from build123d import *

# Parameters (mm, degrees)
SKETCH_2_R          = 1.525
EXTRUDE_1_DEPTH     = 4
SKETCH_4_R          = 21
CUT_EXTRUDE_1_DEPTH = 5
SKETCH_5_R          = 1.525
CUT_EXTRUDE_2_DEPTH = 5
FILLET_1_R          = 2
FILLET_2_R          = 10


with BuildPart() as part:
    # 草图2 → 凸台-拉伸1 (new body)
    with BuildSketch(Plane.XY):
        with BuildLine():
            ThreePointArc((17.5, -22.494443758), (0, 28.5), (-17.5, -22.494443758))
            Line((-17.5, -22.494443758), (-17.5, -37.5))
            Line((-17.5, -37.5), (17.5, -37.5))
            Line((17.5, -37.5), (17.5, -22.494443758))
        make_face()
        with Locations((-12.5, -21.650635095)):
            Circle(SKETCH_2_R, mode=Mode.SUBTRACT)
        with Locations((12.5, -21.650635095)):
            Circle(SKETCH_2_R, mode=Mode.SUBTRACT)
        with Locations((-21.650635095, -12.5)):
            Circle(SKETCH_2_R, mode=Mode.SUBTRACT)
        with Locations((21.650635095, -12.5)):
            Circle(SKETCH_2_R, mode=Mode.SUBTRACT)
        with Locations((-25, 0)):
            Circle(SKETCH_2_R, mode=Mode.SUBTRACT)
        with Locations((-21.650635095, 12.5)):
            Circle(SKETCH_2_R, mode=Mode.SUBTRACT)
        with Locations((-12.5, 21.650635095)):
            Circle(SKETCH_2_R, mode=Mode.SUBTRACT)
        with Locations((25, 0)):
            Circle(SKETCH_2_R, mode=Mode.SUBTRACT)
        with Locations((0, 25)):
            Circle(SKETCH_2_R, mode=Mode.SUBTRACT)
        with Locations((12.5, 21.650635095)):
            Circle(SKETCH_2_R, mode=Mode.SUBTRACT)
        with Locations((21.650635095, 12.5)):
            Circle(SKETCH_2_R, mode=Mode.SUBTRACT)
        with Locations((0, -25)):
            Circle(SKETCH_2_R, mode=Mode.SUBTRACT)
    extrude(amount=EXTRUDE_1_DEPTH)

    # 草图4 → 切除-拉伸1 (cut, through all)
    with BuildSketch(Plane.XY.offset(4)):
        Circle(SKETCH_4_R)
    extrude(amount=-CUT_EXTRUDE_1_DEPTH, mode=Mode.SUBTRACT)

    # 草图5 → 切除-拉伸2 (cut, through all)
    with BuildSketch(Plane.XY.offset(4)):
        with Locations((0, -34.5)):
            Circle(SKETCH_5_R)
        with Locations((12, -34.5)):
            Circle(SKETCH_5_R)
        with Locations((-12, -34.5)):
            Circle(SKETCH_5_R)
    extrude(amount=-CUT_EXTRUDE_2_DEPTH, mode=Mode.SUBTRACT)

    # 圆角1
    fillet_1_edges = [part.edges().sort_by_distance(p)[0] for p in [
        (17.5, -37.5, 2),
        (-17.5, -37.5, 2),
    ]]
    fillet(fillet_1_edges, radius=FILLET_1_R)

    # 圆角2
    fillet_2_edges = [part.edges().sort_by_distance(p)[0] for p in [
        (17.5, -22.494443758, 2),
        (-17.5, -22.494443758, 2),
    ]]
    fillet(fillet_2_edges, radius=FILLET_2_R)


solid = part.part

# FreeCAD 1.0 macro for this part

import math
import FreeCAD as App
import Part
import Sketcher


def edges_at(feature, points):
    """Names of the edges that pass closest to the given points."""
    edges = feature.Shape.Edges
    near = lambda p: min(range(len(edges)), key=lambda i: edges[i].distToShape(Part.Vertex(*p))[0])
    return sorted({f"Edge{near(p) + 1}" for p in points})

doc = App.newDocument("Part")
body = doc.addObject("PartDesign::Body", "Body")

sketch1 = body.newObject("Sketcher::SketchObject", "Sketch")
sketch1.AttachmentSupport = (doc.getObject("XY_Plane"), [""])
sketch1.MapMode = "FlatFace"
sketch1.addGeometry([
    Part.ArcOfCircle(Part.Circle(App.Vector(0, 0, 0), App.Vector(0, 0, 1), 28.5), math.radians(-52), math.radians(232)),
    Part.LineSegment(App.Vector(-17.5, -22.5, 0), App.Vector(-17.5, -37.5, 0)),
    Part.LineSegment(App.Vector(-17.5, -37.5, 0), App.Vector(17.5, -37.5, 0)),
    Part.LineSegment(App.Vector(17.5, -37.5, 0), App.Vector(17.5, -22.5, 0)),
    Part.Circle(App.Vector(-12.5, -21.7, 0), App.Vector(0, 0, 1), 1.5),
    Part.Circle(App.Vector(-21.7, -12.5, 0), App.Vector(0, 0, 1), 1.5),
    Part.Circle(App.Vector(0, -25, 0), App.Vector(0, 0, 1), 1.5),
    Part.Circle(App.Vector(12.5, -21.7, 0), App.Vector(0, 0, 1), 1.5),
    Part.Circle(App.Vector(21.7, -12.5, 0), App.Vector(0, 0, 1), 1.5),
    Part.Circle(App.Vector(-25, 0, 0), App.Vector(0, 0, 1), 1.5),
    Part.Circle(App.Vector(-21.7, 12.5, 0), App.Vector(0, 0, 1), 1.5),
    Part.Circle(App.Vector(-12.5, 21.7, 0), App.Vector(0, 0, 1), 1.5),
    Part.Circle(App.Vector(25, 0, 0), App.Vector(0, 0, 1), 1.5),
    Part.Circle(App.Vector(21.7, 12.5, 0), App.Vector(0, 0, 1), 1.5),
    Part.Circle(App.Vector(0, 25, 0), App.Vector(0, 0, 1), 1.5),
    Part.Circle(App.Vector(12.5, 21.7, 0), App.Vector(0, 0, 1), 1.5),
], False)
sketch1.addConstraint([
    Sketcher.Constraint("Coincident", 0, 2, 1, 1),
    Sketcher.Constraint("Coincident", 1, 2, 2, 1),
    Sketcher.Constraint("Coincident", 2, 2, 3, 1),
    Sketcher.Constraint("Coincident", 3, 2, 0, 1),
    Sketcher.Constraint("Vertical", 1),
    Sketcher.Constraint("Horizontal", 2),
    Sketcher.Constraint("Vertical", 3),
    Sketcher.Constraint("Coincident", 0, 3, -1, 1),
    Sketcher.Constraint("Equal", 4, 5),
    Sketcher.Constraint("Equal", 5, 6),
    Sketcher.Constraint("Equal", 6, 7),
    Sketcher.Constraint("Equal", 7, 8),
    Sketcher.Constraint("Equal", 8, 9),
    Sketcher.Constraint("Equal", 9, 10),
    Sketcher.Constraint("Equal", 10, 11),
    Sketcher.Constraint("Equal", 11, 12),
    Sketcher.Constraint("Equal", 12, 13),
    Sketcher.Constraint("Equal", 13, 14),
    Sketcher.Constraint("Equal", 14, 15),
    Sketcher.Constraint("Symmetric", 8, 3, 10, 3, -1, 1),
    Sketcher.Constraint("Symmetric", 7, 3, 11, 3, -1, 1),
    Sketcher.Constraint("Symmetric", 9, 3, 12, 3, -1, 1),
    Sketcher.Constraint("Symmetric", 5, 3, 13, 3, -1, 1),
    Sketcher.Constraint("Symmetric", 6, 3, 14, 3, -1, 1),
    Sketcher.Constraint("Symmetric", 4, 3, 15, 3, -1, 1),
    Sketcher.Constraint("Symmetric", 4, 3, 7, 3, -2),
    Sketcher.Constraint("Symmetric", 5, 3, 8, 3, -2),
    Sketcher.Constraint("PointOnObject", 6, 3, -2),
    Sketcher.Constraint("PointOnObject", 9, 3, -1),
    Sketcher.Constraint("Horizontal", 0, 2, 3, 2),
    Sketcher.Constraint("Radius", 0, 28.5),
    Sketcher.Constraint("Diameter", 4, 3.05),
    Sketcher.Constraint("DistanceX", 2, 1, 2, 2, 35.0),
    Sketcher.Constraint("DistanceY", 6, 3, -1, 1, 25.0),
    Sketcher.Constraint("DistanceX", 9, 3, -1, 1, 25.0),
    Sketcher.Constraint("DistanceX", 4, 3, 7, 3, 25.0),
    Sketcher.Constraint("DistanceY", 5, 3, 10, 3, 25.0),
    Sketcher.Constraint("DistanceY", 1, 2, 5, 3, 25.0),
    Sketcher.Constraint("DistanceX", 5, 3, 8, 3, 43.30127),
    Sketcher.Constraint("DistanceY", 4, 3, 11, 3, 43.30127),
])
pad1 = body.newObject("PartDesign::Pad", "Pad")
pad1.Profile = sketch1
pad1.Length = 4

sketch2 = body.newObject("Sketcher::SketchObject", "Sketch001")
sketch2.AttachmentSupport = (doc.getObject("XY_Plane"), [""])
sketch2.MapMode = "FlatFace"
sketch2.AttachmentOffset = App.Placement(App.Vector(0, 0, 4), App.Rotation())
sketch2.addGeometry(Part.Circle(App.Vector(0, 0, 0), App.Vector(0, 0, 1), 21), False)
sketch2.addConstraint([
    Sketcher.Constraint("Coincident", 0, 3, -1, 1),
    Sketcher.Constraint("Diameter", 0, 42.0),
])
pocket1 = body.newObject("PartDesign::Pocket", "Pocket")
pocket1.Profile = sketch2
pocket1.Type = "ThroughAll"

sketch3 = body.newObject("Sketcher::SketchObject", "Sketch002")
sketch3.AttachmentSupport = (doc.getObject("XY_Plane"), [""])
sketch3.MapMode = "FlatFace"
sketch3.AttachmentOffset = App.Placement(App.Vector(0, 0, 4), App.Rotation())
sketch3.addGeometry([
    Part.Circle(App.Vector(0, -34.5, 0), App.Vector(0, 0, 1), 1.5),
    Part.Circle(App.Vector(12, -34.5, 0), App.Vector(0, 0, 1), 1.5),
    Part.Circle(App.Vector(-12, -34.5, 0), App.Vector(0, 0, 1), 1.5),
], False)
sketch3.addConstraint([
    Sketcher.Constraint("Equal", 0, 1),
    Sketcher.Constraint("Equal", 1, 2),
    Sketcher.Constraint("Symmetric", 1, 3, 2, 3, -2),
    Sketcher.Constraint("PointOnObject", 0, 3, -2),
    Sketcher.Constraint("Horizontal", 0, 3, 1, 3),
    Sketcher.Constraint("Diameter", 0, 3.05),
    Sketcher.Constraint("DistanceX", -1, 1, 1, 3, 12.0),
    Sketcher.Constraint("DistanceY", 0, 3, -1, 1, 34.5),
])
pocket2 = body.newObject("PartDesign::Pocket", "Pocket001")
pocket2.Profile = sketch3
pocket2.Type = "ThroughAll"
doc.recompute()

fillet = body.newObject("PartDesign::Fillet", "Fillet")
fillet.Base = (pocket2, edges_at(pocket2, [(17.5, -37.5, 2), (-17.5, -37.5, 2)]))
fillet.Radius = 2
doc.recompute()

fillet2 = body.newObject("PartDesign::Fillet", "Fillet001")
fillet2.Base = (fillet, edges_at(fillet, [(17.5, -22.494, 2), (-17.5, -22.494, 2)]))
fillet2.Radius = 10

doc.recompute()
